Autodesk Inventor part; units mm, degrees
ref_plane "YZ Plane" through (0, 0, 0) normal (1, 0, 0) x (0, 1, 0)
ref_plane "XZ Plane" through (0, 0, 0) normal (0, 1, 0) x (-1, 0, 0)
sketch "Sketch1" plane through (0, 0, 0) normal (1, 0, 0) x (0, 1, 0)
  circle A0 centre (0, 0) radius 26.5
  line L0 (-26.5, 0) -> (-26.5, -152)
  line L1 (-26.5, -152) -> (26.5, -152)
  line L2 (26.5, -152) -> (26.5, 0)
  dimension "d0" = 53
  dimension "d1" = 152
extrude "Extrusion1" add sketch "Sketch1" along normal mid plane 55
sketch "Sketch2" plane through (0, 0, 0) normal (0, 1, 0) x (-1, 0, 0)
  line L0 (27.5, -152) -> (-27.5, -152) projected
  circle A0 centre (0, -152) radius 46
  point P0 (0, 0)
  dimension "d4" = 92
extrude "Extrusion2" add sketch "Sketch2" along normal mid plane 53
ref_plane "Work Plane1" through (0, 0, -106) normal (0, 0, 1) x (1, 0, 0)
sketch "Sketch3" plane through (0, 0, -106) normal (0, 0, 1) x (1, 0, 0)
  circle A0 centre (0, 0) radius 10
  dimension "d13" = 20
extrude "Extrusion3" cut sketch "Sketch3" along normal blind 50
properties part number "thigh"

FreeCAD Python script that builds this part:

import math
import FreeCAD as App
import Part
import Sketcher
from FreeCAD import Vector

doc = App.newDocument("Part")
body = doc.addObject("PartDesign::Body", "Body")

# Sketch on YZ plane
sketch1 = body.newObject("Sketcher::SketchObject", "Sketch")
sketch1.AttachmentSupport = (doc.getObject("YZ_Plane"), [""])
sketch1.MapMode = "FlatFace"
sketch1.addGeometry([
    Part.ArcOfCircle(Part.Circle(Vector(0, 0, 0), Vector(0, 0, 1), 26), math.radians(0), math.radians(180)),
    Part.LineSegment(Vector(-26, 0, 0), Vector(-26, -152, 0)),
    Part.LineSegment(Vector(-26, -152, 0), Vector(26, -152, 0)),
    Part.LineSegment(Vector(26, -152, 0), Vector(26, 0, 0)),
], False)
sketch1.addConstraint([
    Sketcher.Constraint("Tangent", 0, 2, 1, 1),
    Sketcher.Constraint("Coincident", 1, 2, 2, 1),
    Sketcher.Constraint("Coincident", 2, 2, 3, 1),
    Sketcher.Constraint("Tangent", 3, 2, 0, 1),
    Sketcher.Constraint("Vertical", 1),
    Sketcher.Constraint("Horizontal", 2),
    Sketcher.Constraint("Vertical", 3),
    Sketcher.Constraint("Coincident", 0, 3, -1, 1),
    Sketcher.Constraint("Radius", 0, 26.5),
    Sketcher.Constraint("DistanceY", 1, 2, 1, 1, 152.0),
])
pad1 = body.newObject("PartDesign::Pad", "Pad")
pad1.Profile = sketch1
pad1.Length = 55
pad1.Midplane = True

# Sketch on XZ plane
sketch2 = body.newObject("Sketcher::SketchObject", "Sketch001")
sketch2.AttachmentSupport = (doc.getObject("XZ_Plane"), [""])
sketch2.MapMode = "FlatFace"
sketch2.addGeometry(Part.Circle(Vector(0, -152, 0), Vector(0, 0, 1), 46), False)
sketch2.addConstraint([
    Sketcher.Constraint("PointOnObject", 0, 3, -2),
    Sketcher.Constraint("Diameter", 0, 92.0),
    Sketcher.Constraint("DistanceY", 0, 3, -1, 1, 152.0),
])
pad2 = body.newObject("PartDesign::Pad", "Pad001")
pad2.Profile = sketch2
pad2.Length = 53
pad2.Midplane = True

# Sketch on XY plane
sketch3 = body.newObject("Sketcher::SketchObject", "Sketch002")
sketch3.AttachmentSupport = (doc.getObject("XY_Plane"), [""])
sketch3.MapMode = "FlatFace"
sketch3.AttachmentOffset = App.Placement(Vector(0, 0, -106), App.Rotation())
sketch3.addGeometry(Part.Circle(Vector(0, 0, 0), Vector(0, 0, 1), 10), False)
sketch3.addConstraint([
    Sketcher.Constraint("Coincident", 0, 3, -1, 1),
    Sketcher.Constraint("Diameter", 0, 20.0),
])
pocket1 = body.newObject("PartDesign::Pocket", "Pocket")
pocket1.Profile = sketch3
pocket1.Length = 50
pocket1.Reversed = True

doc.recompute()
